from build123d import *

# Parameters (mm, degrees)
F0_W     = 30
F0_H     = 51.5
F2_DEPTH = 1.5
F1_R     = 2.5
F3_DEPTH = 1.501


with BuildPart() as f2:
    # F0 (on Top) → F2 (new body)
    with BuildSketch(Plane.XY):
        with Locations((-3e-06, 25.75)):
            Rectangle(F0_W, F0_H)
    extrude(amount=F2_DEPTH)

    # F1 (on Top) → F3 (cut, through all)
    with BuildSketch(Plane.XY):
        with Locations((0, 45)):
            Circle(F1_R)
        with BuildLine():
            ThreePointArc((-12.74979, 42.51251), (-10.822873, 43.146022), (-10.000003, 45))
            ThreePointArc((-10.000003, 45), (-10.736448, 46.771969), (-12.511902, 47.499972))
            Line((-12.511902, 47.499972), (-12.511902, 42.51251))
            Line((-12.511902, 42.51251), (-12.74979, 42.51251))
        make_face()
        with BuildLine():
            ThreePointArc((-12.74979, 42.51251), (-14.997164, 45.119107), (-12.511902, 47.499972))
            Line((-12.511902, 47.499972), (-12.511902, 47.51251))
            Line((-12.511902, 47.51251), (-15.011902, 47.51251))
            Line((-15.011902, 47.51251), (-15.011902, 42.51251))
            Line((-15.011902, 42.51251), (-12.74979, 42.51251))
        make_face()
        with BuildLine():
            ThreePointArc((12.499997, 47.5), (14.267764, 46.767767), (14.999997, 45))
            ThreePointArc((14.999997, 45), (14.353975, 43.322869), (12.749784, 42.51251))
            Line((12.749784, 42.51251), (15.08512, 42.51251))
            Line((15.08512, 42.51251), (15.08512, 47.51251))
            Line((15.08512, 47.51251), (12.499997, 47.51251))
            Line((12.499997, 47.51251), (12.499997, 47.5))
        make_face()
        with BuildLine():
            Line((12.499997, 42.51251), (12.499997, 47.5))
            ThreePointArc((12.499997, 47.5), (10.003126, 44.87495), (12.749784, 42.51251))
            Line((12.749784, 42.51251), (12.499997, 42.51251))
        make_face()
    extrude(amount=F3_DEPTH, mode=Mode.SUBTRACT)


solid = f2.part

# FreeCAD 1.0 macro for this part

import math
import FreeCAD as App
import Part
import Sketcher

doc = App.newDocument("Part")
params = doc.addObject("Spreadsheet::Sheet", "Params")
for row, (alias, value) in enumerate([
    ("sketch1_width", "30 mm"),
    ("sketch1_height", "51.5 mm"),
    ("pad1_length", "1.5 mm"),
    ("sketch2_diameter", "5 mm"),
    ("sketch2_height", "5 mm"),
    ("sketch2_width", "2.5 mm"),
], start=1):
    params.set(f"A{row}", alias)
    params.set(f"B{row}", "=" + value)
    params.setAlias(f"B{row}", alias)

body = doc.addObject("PartDesign::Body", "Body")
body.AllowCompound = True

# Sketch on XY plane
sketch1 = body.newObject("Sketcher::SketchObject", "Sketch")
sketch1.AttachmentSupport = (doc.getObject("XY_Plane"), [""])
sketch1.MapMode = "FlatFace"
sketch1.addGeometry(Part.LineSegment(App.Vector(-15.000003, 51.5, 0), App.Vector(-15.000003, 0, 0)), False)
sketch1.addGeometry(Part.LineSegment(App.Vector(-15.000003, 0, 0), App.Vector(14.999997, 0, 0)), False)
sketch1.addGeometry(Part.LineSegment(App.Vector(14.999997, 0, 0), App.Vector(14.999997, 51.5, 0)), False)
sketch1.addGeometry(Part.LineSegment(App.Vector(14.999997, 51.5, 0), App.Vector(-15.000003, 51.5, 0)), False)
sketch1.addConstraint(Sketcher.Constraint("Coincident", 0, 2, 1, 1))
sketch1.addConstraint(Sketcher.Constraint("Coincident", 1, 2, 2, 1))
sketch1.addConstraint(Sketcher.Constraint("Coincident", 2, 2, 3, 1))
sketch1.addConstraint(Sketcher.Constraint("Coincident", 3, 2, 0, 1))
sketch1.addConstraint(Sketcher.Constraint("Vertical", 0))
sketch1.addConstraint(Sketcher.Constraint("Horizontal", 1))
sketch1.addConstraint(Sketcher.Constraint("Vertical", 2))
sketch1.addConstraint(Sketcher.Constraint("Horizontal", 3))
sketch1.addConstraint(Sketcher.Constraint("Symmetric", 0, 2, 1, 2, -1, 1))
sketch1.addConstraint(Sketcher.Constraint("DistanceX", 1, 1, 1, 2, 30.0))
sketch1.addConstraint(Sketcher.Constraint("DistanceY", 0, 2, 0, 1, 51.5))
sketch1.setExpression("Constraints[9]", "Params.sketch1_width")
sketch1.setExpression("Constraints[10]", "Params.sketch1_height")
pad1 = body.newObject("PartDesign::Pad", "Pad")
pad1.Profile = sketch1
pad1.setExpression("Length", "Params.pad1_length")

# Sketch on XY plane
sketch2 = body.newObject("Sketcher::SketchObject", "Sketch001")
sketch2.AttachmentSupport = (doc.getObject("XY_Plane"), [""])
sketch2.MapMode = "FlatFace"
sketch2.addGeometry(Part.Circle(App.Vector(0, 45, 0), App.Vector(0, 0, 1), 2.5), False)
sketch2.addGeometry(Part.ArcOfCircle(Part.Circle(App.Vector(-12.500003, 45, 0), App.Vector(0, 0, 1), 2.5), math.radians(-95.734258), math.radians(-0.000006)), False)
sketch2.addGeometry(Part.ArcOfCircle(Part.Circle(App.Vector(-12.500003, 45, 0), App.Vector(0, 0, 1), 2.5), math.radians(0.000001), math.radians(90.272698)), False)
sketch2.addGeometry(Part.LineSegment(App.Vector(-12.511902, 47.499972, 0), App.Vector(-12.511902, 42.51251, 0)), False)
sketch2.addGeometry(Part.LineSegment(App.Vector(-12.511902, 42.51251, 0), App.Vector(-12.74979, 42.51251, 0)), False)
sketch2.addGeometry(Part.ArcOfCircle(Part.Circle(App.Vector(-12.500003, 45, 0), App.Vector(0, 0, 1), 2.5), math.radians(90.272712), math.radians(264.26573)), False)
sketch2.addGeometry(Part.LineSegment(App.Vector(-12.511902, 47.499972, 0), App.Vector(-12.511902, 47.51251, 0)), False)
sketch2.addGeometry(Part.LineSegment(App.Vector(-12.511902, 47.51251, 0), App.Vector(-15.011902, 47.51251, 0)), False)
sketch2.addGeometry(Part.LineSegment(App.Vector(-15.011902, 47.51251, 0), App.Vector(-15.011902, 42.51251, 0)), False)
sketch2.addGeometry(Part.LineSegment(App.Vector(-15.011902, 42.51251, 0), App.Vector(-12.74979, 42.51251, 0)), False)
sketch2.addGeometry(Part.ArcOfCircle(Part.Circle(App.Vector(12.499997, 45, 0), App.Vector(0, 0, 1), 2.5), math.radians(-0.000004), math.radians(90.000004)), False)
sketch2.addGeometry(Part.ArcOfCircle(Part.Circle(App.Vector(12.499999, 44.999999, 0), App.Vector(0, 0, 1), 2.499998), math.radians(-84.265769), math.radians(0.000033)), False)
sketch2.addGeometry(Part.LineSegment(App.Vector(12.749784, 42.51251, 0), App.Vector(15.08512, 42.51251, 0)), False)
sketch2.addGeometry(Part.LineSegment(App.Vector(15.08512, 42.51251, 0), App.Vector(15.08512, 47.51251, 0)), False)
sketch2.addGeometry(Part.LineSegment(App.Vector(15.08512, 47.51251, 0), App.Vector(12.499997, 47.51251, 0)), False)
sketch2.addGeometry(Part.LineSegment(App.Vector(12.499997, 47.51251, 0), App.Vector(12.499997, 47.5, 0)), False)
sketch2.addGeometry(Part.LineSegment(App.Vector(12.499997, 42.51251, 0), App.Vector(12.499997, 47.5, 0)), False)
sketch2.addGeometry(Part.ArcOfCircle(Part.Circle(App.Vector(12.499997, 45, 0), App.Vector(0, 0, 1), 2.5), math.radians(89.99999), math.radians(275.734274)), False)
sketch2.addGeometry(Part.LineSegment(App.Vector(12.749784, 42.51251, 0), App.Vector(12.499997, 42.51251, 0)), False)
sketch2.addConstraint(Sketcher.Constraint("Tangent", 1, 2, 2, 1))
sketch2.addConstraint(Sketcher.Constraint("Coincident", 2, 2, 3, 1))
sketch2.addConstraint(Sketcher.Constraint("Coincident", 3, 2, 4, 1))
sketch2.addConstraint(Sketcher.Constraint("Coincident", 4, 2, 1, 1))
sketch2.addConstraint(Sketcher.Constraint("Coincident", 5, 1, 6, 1))
sketch2.addConstraint(Sketcher.Constraint("Coincident", 6, 2, 7, 1))
sketch2.addConstraint(Sketcher.Constraint("Coincident", 7, 2, 8, 1))
sketch2.addConstraint(Sketcher.Constraint("Coincident", 8, 2, 9, 1))
sketch2.addConstraint(Sketcher.Constraint("Coincident", 9, 2, 5, 2))
sketch2.addConstraint(Sketcher.Constraint("Tangent", 10, 1, 11, 2))
sketch2.addConstraint(Sketcher.Constraint("Coincident", 11, 1, 12, 1))
sketch2.addConstraint(Sketcher.Constraint("Coincident", 12, 2, 13, 1))
sketch2.addConstraint(Sketcher.Constraint("Coincident", 13, 2, 14, 1))
sketch2.addConstraint(Sketcher.Constraint("Coincident", 14, 2, 15, 1))
sketch2.addConstraint(Sketcher.Constraint("Coincident", 15, 2, 10, 2))
sketch2.addConstraint(Sketcher.Constraint("Coincident", 16, 2, 17, 1))
sketch2.addConstraint(Sketcher.Constraint("Coincident", 17, 2, 18, 1))
sketch2.addConstraint(Sketcher.Constraint("Coincident", 18, 2, 16, 1))
sketch2.addConstraint(Sketcher.Constraint("Vertical", 3))
sketch2.addConstraint(Sketcher.Constraint("Horizontal", 4))
sketch2.addConstraint(Sketcher.Constraint("Vertical", 6))
sketch2.addConstraint(Sketcher.Constraint("Horizontal", 7))
sketch2.addConstraint(Sketcher.Constraint("Vertical", 8))
sketch2.addConstraint(Sketcher.Constraint("Horizontal", 9))
sketch2.addConstraint(Sketcher.Constraint("Horizontal", 12))
sketch2.addConstraint(Sketcher.Constraint("Vertical", 13))
sketch2.addConstraint(Sketcher.Constraint("Horizontal", 14))
sketch2.addConstraint(Sketcher.Constraint("Vertical", 15))
sketch2.addConstraint(Sketcher.Constraint("Vertical", 16))
sketch2.addConstraint(Sketcher.Constraint("Horizontal", 18))
sketch2.addConstraint(Sketcher.Constraint("Coincident", 5, 3, 1, 3))
sketch2.addConstraint(Sketcher.Constraint("Coincident", 17, 3, 10, 3))
sketch2.addConstraint(Sketcher.Constraint("Coincident", 5, 1, 2, 2))
sketch2.addConstraint(Sketcher.Constraint("Coincident", 9, 2, 4, 2))
sketch2.addConstraint(Sketcher.Constraint("Coincident", 16, 2, 15, 2))
sketch2.addConstraint(Sketcher.Constraint("Coincident", 17, 2, 11, 1))
sketch2.addConstraint(Sketcher.Constraint("Equal", 0, 1))
sketch2.addConstraint(Sketcher.Constraint("Equal", 5, 10))
sketch2.addConstraint(Sketcher.Constraint("Symmetric", 1, 3, 10, 3, -2))
sketch2.addConstraint(Sketcher.Constraint("PointOnObject", 0, 3, -2))
sketch2.addConstraint(Sketcher.Constraint("Horizontal", 0, 3, 1, 3))
sketch2.addConstraint(Sketcher.Constraint("Horizontal", 17, 3, 1, 2))
sketch2.addConstraint(Sketcher.Constraint("Horizontal", 1, 2, 10, 1))
sketch2.addConstraint(Sketcher.Constraint("Horizontal", 9, 2, 11, 1))
sketch2.addConstraint(Sketcher.Constraint("Horizontal", 7, 2, 13, 2))
sketch2.addConstraint(Sketcher.Constraint("Vertical", 17, 3, 14, 2))
sketch2.addConstraint(Sketcher.Constraint("Diameter", 0, 5.0))
sketch2.addConstraint(Sketcher.Constraint("DistanceY", 8, 2, 8, 1, 5.0))
sketch2.addConstraint(Sketcher.Constraint("DistanceX", 7, 2, 7, 1, 2.5))
sketch2.addConstraint(Sketcher.Constraint("DistanceY", -1, 1, 0, 3, 45.0))
sketch2.addConstraint(Sketcher.Constraint("DistanceX", 5, 3, 10, 3, 25.0))
sketch2.addConstraint(Sketcher.Constraint("DistanceX", 4, 2, 4, 1, 0.237888))
sketch2.addConstraint(Sketcher.Constraint("DistanceY", 15, 2, 15, 1, 0.01251))
sketch2.addConstraint(Sketcher.Constraint("DistanceX", 12, 1, 12, 2, 2.335336))
sketch2.setExpression("Constraints[46]", "Params.sketch2_diameter")
sketch2.setExpression("Constraints[47]", "Params.sketch2_height")
sketch2.setExpression("Constraints[48]", "Params.sketch2_width")
pocket1 = body.newObject("PartDesign::Pocket", "Pocket")
pocket1.Profile = sketch2
pocket1.Type = "ThroughAll"
pocket1.Reversed = True

doc.recompute()
